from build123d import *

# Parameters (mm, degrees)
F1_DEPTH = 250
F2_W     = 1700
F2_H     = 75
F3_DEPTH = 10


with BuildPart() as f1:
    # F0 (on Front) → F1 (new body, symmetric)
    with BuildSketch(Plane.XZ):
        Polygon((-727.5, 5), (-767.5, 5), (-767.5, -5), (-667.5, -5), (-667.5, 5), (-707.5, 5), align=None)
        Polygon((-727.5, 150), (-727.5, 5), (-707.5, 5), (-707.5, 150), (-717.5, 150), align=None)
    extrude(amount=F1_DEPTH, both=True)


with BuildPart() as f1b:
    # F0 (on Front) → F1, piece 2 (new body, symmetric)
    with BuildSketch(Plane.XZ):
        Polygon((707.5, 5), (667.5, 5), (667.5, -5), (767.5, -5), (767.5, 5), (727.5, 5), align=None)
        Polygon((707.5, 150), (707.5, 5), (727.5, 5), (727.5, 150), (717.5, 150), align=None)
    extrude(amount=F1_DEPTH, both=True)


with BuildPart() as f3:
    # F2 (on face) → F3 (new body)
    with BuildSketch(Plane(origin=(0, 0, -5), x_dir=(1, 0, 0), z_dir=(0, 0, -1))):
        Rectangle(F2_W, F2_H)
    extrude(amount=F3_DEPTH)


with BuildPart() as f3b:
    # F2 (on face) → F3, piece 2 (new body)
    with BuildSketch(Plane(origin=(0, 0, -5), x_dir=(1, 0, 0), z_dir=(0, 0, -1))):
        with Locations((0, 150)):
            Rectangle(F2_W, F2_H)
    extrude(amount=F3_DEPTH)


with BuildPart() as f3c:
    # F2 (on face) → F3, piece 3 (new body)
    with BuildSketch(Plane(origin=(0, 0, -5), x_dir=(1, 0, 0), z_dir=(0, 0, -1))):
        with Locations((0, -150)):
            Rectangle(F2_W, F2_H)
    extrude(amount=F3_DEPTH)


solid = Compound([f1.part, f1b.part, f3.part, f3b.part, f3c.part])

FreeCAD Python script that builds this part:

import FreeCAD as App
import Part
import Sketcher
from FreeCAD import Vector
Q = App.Units.Quantity


def add_polygon(sketch, points):
    """Adds a closed chain of lines whose ends are joined by coincident constraints."""
    first, n = sketch.GeometryCount, len(points)
    for a, b in zip(points, points[1:] + points[:1]):
        sketch.addGeometry(Part.LineSegment(App.Vector(*a, 0), App.Vector(*b, 0)), False)
    for i in range(n):
        sketch.addConstraint(Sketcher.Constraint("Coincident", first + i, 2, first + (i + 1) % n, 1))

doc = App.newDocument("Part")
body = doc.addObject("PartDesign::Body", "Body")

# Sketch on XZ plane
sketch1 = body.newObject("Sketcher::SketchObject", "Sketch")
sketch1.AttachmentSupport = (doc.getObject("XZ_Plane"), [""])
sketch1.MapMode = "FlatFace"
add_polygon(sketch1, [(-767.5, 5), (-767.5, -5), (-667.5, -5), (-667.5, 5), (-707.5, 5), (-707.5, 150), (-727.5, 150), (-727.5, 5)])  # lines 0-7
sketch1.addConstraint([
    Sketcher.Constraint("Vertical", 0),
    Sketcher.Constraint("Horizontal", 1),
    Sketcher.Constraint("Vertical", 2),
    Sketcher.Constraint("Horizontal", 3),
    Sketcher.Constraint("Vertical", 4),
    Sketcher.Constraint("Horizontal", 5),
    Sketcher.Constraint("Vertical", 6),
    Sketcher.Constraint("Horizontal", 7),
    Sketcher.Constraint("Horizontal", 3, 2, 6, 2),
    Sketcher.Constraint("Equal", 3, 7),
    Sketcher.Constraint("DistanceX", 1, 1, 1, 2, Q("100 mm")),
    Sketcher.Constraint("DistanceX", 3, 2, 3, 1, Q("40 mm")),
    Sketcher.Constraint("DistanceY", 0, 2, 0, 1, Q("10 mm")),
    Sketcher.Constraint("DistanceY", 4, 1, 4, 2, Q("145 mm")),
    Sketcher.Constraint("DistanceY", 0, 2, -1, 1, Q("5 mm")),
    Sketcher.Constraint("DistanceX", 0, 2, -1, 1, Q("767.5 mm")),
])
pad1 = body.newObject("PartDesign::Pad", "Pad")
pad1.Profile = sketch1
pad1.Length = 500
pad1.Midplane = True
body2 = doc.addObject("PartDesign::Body", "Body001")

# Sketch on XZ plane
sketch2 = body2.newObject("Sketcher::SketchObject", "Sketch001")
sketch2.AttachmentSupport = (doc.getObject("XZ_Plane001"), [""])
sketch2.MapMode = "FlatFace"
add_polygon(sketch2, [(667.5, 5), (667.5, -5), (767.5, -5), (767.5, 5), (727.5, 5), (727.5, 150), (707.5, 150), (707.5, 5)])  # lines 0-7
sketch2.addConstraint([
    Sketcher.Constraint("Vertical", 0),
    Sketcher.Constraint("Horizontal", 1),
    Sketcher.Constraint("Vertical", 2),
    Sketcher.Constraint("Horizontal", 3),
    Sketcher.Constraint("Vertical", 4),
    Sketcher.Constraint("Horizontal", 5),
    Sketcher.Constraint("Vertical", 6),
    Sketcher.Constraint("Horizontal", 7),
    Sketcher.Constraint("Horizontal", 3, 2, 6, 2),
    Sketcher.Constraint("Equal", 3, 7),
    Sketcher.Constraint("DistanceX", 1, 1, 1, 2, Q("100 mm")),
    Sketcher.Constraint("DistanceX", 3, 2, 3, 1, Q("40 mm")),
    Sketcher.Constraint("DistanceY", 0, 2, 0, 1, Q("10 mm")),
    Sketcher.Constraint("DistanceY", 4, 1, 4, 2, Q("145 mm")),
    Sketcher.Constraint("DistanceY", 0, 2, -1, 1, Q("5 mm")),
    Sketcher.Constraint("DistanceX", -1, 1, 0, 2, Q("667.5 mm")),
])
pad2 = body2.newObject("PartDesign::Pad", "Pad001")
pad2.Profile = sketch2
pad2.Length = 500
pad2.Midplane = True
body3 = doc.addObject("PartDesign::Body", "Body002")

# Sketch on XY plane
sketch3 = body3.newObject("Sketcher::SketchObject", "Sketch002")
sketch3.AttachmentSupport = (doc.getObject("XY_Plane002"), [""])
sketch3.MapMode = "FlatFace"
sketch3.AttachmentOffset = App.Placement(Vector(0, 0, -5), App.Rotation())
add_polygon(sketch3, [(-850, -37.5), (-850, 37.5), (850, 37.5), (850, -37.5)])  # lines 0-3
sketch3.addConstraint([
    Sketcher.Constraint("Vertical", 0),
    Sketcher.Constraint("Horizontal", 1),
    Sketcher.Constraint("Vertical", 2),
    Sketcher.Constraint("Horizontal", 3),
    Sketcher.Constraint("Symmetric", 0, 2, 2, 2, -1, 1),
    Sketcher.Constraint("DistanceX", 1, 1, 1, 2, Q("1700 mm")),
    Sketcher.Constraint("DistanceY", 0, 1, 0, 2, Q("75 mm")),
])
pad3 = body3.newObject("PartDesign::Pad", "Pad002")
pad3.Profile = sketch3
pad3.Length = 10
pad3.Reversed = True
body4 = doc.addObject("PartDesign::Body", "Body003")

# Sketch on XY plane
sketch4 = body4.newObject("Sketcher::SketchObject", "Sketch003")
sketch4.AttachmentSupport = (doc.getObject("XY_Plane003"), [""])
sketch4.MapMode = "FlatFace"
sketch4.AttachmentOffset = App.Placement(Vector(0, 0, -5), App.Rotation())
add_polygon(sketch4, [(-850, -187.5), (-850, -112.5), (850, -112.5), (850, -187.5)])  # lines 0-3
sketch4.addConstraint([
    Sketcher.Constraint("Vertical", 0),
    Sketcher.Constraint("Horizontal", 1),
    Sketcher.Constraint("Vertical", 2),
    Sketcher.Constraint("Horizontal", 3),
    Sketcher.Constraint("DistanceX", 1, 1, 1, 2, Q("1700 mm")),
    Sketcher.Constraint("DistanceY", 0, 1, 0, 2, Q("75 mm")),
    Sketcher.Constraint("DistanceX", 0, 2, -1, 1, Q("850 mm")),
    Sketcher.Constraint("DistanceY", 0, 2, -1, 1, Q("112.5 mm")),
])
pad4 = body4.newObject("PartDesign::Pad", "Pad003")
pad4.Profile = sketch4
pad4.Length = 10
pad4.Reversed = True
body5 = doc.addObject("PartDesign::Body", "Body004")

# Sketch on XY plane
sketch5 = body5.newObject("Sketcher::SketchObject", "Sketch004")
sketch5.AttachmentSupport = (doc.getObject("XY_Plane004"), [""])
sketch5.MapMode = "FlatFace"
sketch5.AttachmentOffset = App.Placement(Vector(0, 0, -5), App.Rotation())
add_polygon(sketch5, [(-850, 112.5), (-850, 187.5), (850, 187.5), (850, 112.5)])  # lines 0-3
sketch5.addConstraint([
    Sketcher.Constraint("Vertical", 0),
    Sketcher.Constraint("Horizontal", 1),
    Sketcher.Constraint("Vertical", 2),
    Sketcher.Constraint("Horizontal", 3),
    Sketcher.Constraint("DistanceX", 1, 1, 1, 2, Q("1700 mm")),
    Sketcher.Constraint("DistanceY", 0, 1, 0, 2, Q("75 mm")),
    Sketcher.Constraint("DistanceX", 0, 2, -1, 1, Q("850 mm")),
    Sketcher.Constraint("DistanceY", -1, 1, 0, 2, Q("187.5 mm")),
])
pad5 = body5.newObject("PartDesign::Pad", "Pad004")
pad5.Profile = sketch5
pad5.Length = 10
pad5.Reversed = True

doc.recompute()
